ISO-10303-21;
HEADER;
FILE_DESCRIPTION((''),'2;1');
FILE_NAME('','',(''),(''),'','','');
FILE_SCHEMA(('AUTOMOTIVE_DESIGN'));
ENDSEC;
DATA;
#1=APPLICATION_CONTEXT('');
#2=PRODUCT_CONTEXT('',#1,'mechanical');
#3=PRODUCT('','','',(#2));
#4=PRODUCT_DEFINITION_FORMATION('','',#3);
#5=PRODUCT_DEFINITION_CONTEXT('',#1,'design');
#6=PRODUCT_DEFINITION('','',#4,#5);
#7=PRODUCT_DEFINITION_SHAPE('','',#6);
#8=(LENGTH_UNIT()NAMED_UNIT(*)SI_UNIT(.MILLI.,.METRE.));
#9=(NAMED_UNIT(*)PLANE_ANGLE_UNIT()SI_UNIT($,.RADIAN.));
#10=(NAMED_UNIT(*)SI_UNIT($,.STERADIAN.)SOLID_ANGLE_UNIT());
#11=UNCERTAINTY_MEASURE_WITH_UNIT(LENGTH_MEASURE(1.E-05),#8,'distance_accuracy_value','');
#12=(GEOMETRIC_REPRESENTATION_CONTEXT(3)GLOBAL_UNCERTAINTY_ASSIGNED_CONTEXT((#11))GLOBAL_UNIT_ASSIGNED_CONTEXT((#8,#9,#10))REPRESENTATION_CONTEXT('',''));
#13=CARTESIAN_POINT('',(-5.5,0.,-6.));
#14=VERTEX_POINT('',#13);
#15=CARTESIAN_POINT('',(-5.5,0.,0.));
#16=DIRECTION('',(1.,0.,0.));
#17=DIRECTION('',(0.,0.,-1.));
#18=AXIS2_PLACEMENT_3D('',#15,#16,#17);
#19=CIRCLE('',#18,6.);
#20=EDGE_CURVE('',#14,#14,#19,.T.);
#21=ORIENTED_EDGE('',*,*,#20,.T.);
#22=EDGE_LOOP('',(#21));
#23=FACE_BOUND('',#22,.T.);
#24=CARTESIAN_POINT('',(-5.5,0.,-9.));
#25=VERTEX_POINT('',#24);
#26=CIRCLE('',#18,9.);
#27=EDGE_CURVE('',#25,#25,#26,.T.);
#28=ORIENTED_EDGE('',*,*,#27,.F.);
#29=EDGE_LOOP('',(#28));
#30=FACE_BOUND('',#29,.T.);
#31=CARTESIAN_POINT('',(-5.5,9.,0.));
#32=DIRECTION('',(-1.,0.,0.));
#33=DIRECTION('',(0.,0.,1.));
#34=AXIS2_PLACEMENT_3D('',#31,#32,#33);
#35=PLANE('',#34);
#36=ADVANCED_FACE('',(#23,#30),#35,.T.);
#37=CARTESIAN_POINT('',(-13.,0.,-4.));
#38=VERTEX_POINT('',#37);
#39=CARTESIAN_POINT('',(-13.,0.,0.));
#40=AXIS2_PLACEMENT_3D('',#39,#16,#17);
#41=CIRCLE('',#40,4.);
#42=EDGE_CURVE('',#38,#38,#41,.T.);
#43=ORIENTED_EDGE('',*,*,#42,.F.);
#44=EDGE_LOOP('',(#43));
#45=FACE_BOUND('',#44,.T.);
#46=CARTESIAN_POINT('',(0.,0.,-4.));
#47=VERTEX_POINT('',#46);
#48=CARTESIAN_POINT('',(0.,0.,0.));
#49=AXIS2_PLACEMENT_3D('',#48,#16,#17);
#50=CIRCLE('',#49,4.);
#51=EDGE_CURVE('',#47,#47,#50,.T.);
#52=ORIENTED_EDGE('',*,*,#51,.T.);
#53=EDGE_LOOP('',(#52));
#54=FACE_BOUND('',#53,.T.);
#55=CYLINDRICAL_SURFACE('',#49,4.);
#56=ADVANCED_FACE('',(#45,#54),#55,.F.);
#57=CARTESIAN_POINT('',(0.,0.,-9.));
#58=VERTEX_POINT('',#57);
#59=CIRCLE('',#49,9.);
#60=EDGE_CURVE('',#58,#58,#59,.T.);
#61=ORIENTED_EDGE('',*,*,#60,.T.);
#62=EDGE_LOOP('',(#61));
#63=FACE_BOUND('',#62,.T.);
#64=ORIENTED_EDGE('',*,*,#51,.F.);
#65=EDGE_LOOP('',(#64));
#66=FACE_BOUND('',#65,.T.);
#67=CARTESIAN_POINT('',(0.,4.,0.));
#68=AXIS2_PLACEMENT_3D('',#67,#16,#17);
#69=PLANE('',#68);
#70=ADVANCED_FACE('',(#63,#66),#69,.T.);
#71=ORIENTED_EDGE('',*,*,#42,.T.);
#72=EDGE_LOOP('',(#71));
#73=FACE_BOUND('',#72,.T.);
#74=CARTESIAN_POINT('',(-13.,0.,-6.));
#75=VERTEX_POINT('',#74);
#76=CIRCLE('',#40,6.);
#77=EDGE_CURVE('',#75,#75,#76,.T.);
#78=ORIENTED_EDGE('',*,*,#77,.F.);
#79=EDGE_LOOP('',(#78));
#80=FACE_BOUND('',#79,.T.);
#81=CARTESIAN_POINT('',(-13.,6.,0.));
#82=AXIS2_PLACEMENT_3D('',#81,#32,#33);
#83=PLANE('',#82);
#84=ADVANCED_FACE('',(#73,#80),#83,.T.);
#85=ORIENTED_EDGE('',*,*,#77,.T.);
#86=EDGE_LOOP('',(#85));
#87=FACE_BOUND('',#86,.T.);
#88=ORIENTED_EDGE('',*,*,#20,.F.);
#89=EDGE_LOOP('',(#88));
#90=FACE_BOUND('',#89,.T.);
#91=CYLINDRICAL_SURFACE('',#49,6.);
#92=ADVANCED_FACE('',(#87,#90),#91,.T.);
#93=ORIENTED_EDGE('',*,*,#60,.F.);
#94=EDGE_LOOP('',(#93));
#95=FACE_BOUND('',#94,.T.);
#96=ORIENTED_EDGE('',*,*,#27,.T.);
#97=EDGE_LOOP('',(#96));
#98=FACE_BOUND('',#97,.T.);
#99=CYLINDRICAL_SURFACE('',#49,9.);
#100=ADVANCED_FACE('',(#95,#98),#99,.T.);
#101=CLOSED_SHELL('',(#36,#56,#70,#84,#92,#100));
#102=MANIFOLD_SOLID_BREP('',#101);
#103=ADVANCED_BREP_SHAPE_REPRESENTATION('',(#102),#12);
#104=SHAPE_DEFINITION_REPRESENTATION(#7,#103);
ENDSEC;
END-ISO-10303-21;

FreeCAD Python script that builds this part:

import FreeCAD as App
import Part
import Sketcher

V = App.Vector
Q = App.Units.Quantity


def add_polygon(sketch, points):
    """Adds a closed chain of lines whose ends are joined by coincident constraints."""
    first, n = sketch.GeometryCount, len(points)
    for a, b in zip(points, points[1:] + points[:1]):
        sketch.addGeometry(Part.LineSegment(App.Vector(*a, 0), App.Vector(*b, 0)), False)
    for i in range(n):
        sketch.addConstraint(Sketcher.Constraint("Coincident", first + i, 2, first + (i + 1) % n, 1))

doc = App.newDocument("Part")
params = doc.addObject("Spreadsheet::Sheet", "Params")
for row, (alias, value) in enumerate([
    ("sketch1_width", "13 mm"),
    ("sketch1_height", "5 mm"),
    ("sketch1_height2", "3 mm"),
    ("sketch1_width2", "5.5 mm"),
    ("revolution_angle", "360 deg"),
], start=1):
    params.set(f"A{row}", alias)
    params.set(f"B{row}", "=" + value)
    params.setAlias(f"B{row}", alias)

body = doc.addObject("PartDesign::Body", "Body")

# Sketch on XY plane
sketch1 = body.newObject("Sketcher::SketchObject", "Sketch")
sketch1.AttachmentSupport = (doc.getObject("XY_Plane"), [""])
sketch1.MapMode = "FlatFace"
add_polygon(sketch1, [(0, 4), (0, 9), (-5.5, 9), (-5.5, 6), (-13, 6), (-13, 4)])  # lines 0-5
sketch1.addConstraint([
    Sketcher.Constraint("Vertical", 0),
    Sketcher.Constraint("Horizontal", 1),
    Sketcher.Constraint("Vertical", 2),
    Sketcher.Constraint("Horizontal", 3),
    Sketcher.Constraint("Vertical", 4),
    Sketcher.Constraint("Horizontal", 5),
    Sketcher.Constraint("PointOnObject", 0, 2, -2),
    Sketcher.Constraint("DistanceX", 5, 1, 5, 2, Q("13 mm")),
    Sketcher.Constraint("DistanceY", 0, 1, 0, 2, Q("5 mm")),
    Sketcher.Constraint("DistanceY", 2, 2, 2, 1, Q("3 mm")),
    Sketcher.Constraint("DistanceX", 1, 2, 1, 1, Q("5.5 mm")),
    Sketcher.Constraint("DistanceY", -1, 1, 0, 2, Q("9 mm")),
])
sketch1.setExpression("Constraints[13]", "Params.sketch1_width")
sketch1.setExpression("Constraints[14]", "Params.sketch1_height")
sketch1.setExpression("Constraints[15]", "Params.sketch1_height2")
sketch1.setExpression("Constraints[16]", "Params.sketch1_width2")
revolution = body.newObject("PartDesign::Revolution", "Revolution")
revolution.Profile = sketch1
revolution.ReferenceAxis = (sketch1, ["H_Axis"])
revolution.setExpression("Angle", "Params.revolution_angle")

doc.recompute()
